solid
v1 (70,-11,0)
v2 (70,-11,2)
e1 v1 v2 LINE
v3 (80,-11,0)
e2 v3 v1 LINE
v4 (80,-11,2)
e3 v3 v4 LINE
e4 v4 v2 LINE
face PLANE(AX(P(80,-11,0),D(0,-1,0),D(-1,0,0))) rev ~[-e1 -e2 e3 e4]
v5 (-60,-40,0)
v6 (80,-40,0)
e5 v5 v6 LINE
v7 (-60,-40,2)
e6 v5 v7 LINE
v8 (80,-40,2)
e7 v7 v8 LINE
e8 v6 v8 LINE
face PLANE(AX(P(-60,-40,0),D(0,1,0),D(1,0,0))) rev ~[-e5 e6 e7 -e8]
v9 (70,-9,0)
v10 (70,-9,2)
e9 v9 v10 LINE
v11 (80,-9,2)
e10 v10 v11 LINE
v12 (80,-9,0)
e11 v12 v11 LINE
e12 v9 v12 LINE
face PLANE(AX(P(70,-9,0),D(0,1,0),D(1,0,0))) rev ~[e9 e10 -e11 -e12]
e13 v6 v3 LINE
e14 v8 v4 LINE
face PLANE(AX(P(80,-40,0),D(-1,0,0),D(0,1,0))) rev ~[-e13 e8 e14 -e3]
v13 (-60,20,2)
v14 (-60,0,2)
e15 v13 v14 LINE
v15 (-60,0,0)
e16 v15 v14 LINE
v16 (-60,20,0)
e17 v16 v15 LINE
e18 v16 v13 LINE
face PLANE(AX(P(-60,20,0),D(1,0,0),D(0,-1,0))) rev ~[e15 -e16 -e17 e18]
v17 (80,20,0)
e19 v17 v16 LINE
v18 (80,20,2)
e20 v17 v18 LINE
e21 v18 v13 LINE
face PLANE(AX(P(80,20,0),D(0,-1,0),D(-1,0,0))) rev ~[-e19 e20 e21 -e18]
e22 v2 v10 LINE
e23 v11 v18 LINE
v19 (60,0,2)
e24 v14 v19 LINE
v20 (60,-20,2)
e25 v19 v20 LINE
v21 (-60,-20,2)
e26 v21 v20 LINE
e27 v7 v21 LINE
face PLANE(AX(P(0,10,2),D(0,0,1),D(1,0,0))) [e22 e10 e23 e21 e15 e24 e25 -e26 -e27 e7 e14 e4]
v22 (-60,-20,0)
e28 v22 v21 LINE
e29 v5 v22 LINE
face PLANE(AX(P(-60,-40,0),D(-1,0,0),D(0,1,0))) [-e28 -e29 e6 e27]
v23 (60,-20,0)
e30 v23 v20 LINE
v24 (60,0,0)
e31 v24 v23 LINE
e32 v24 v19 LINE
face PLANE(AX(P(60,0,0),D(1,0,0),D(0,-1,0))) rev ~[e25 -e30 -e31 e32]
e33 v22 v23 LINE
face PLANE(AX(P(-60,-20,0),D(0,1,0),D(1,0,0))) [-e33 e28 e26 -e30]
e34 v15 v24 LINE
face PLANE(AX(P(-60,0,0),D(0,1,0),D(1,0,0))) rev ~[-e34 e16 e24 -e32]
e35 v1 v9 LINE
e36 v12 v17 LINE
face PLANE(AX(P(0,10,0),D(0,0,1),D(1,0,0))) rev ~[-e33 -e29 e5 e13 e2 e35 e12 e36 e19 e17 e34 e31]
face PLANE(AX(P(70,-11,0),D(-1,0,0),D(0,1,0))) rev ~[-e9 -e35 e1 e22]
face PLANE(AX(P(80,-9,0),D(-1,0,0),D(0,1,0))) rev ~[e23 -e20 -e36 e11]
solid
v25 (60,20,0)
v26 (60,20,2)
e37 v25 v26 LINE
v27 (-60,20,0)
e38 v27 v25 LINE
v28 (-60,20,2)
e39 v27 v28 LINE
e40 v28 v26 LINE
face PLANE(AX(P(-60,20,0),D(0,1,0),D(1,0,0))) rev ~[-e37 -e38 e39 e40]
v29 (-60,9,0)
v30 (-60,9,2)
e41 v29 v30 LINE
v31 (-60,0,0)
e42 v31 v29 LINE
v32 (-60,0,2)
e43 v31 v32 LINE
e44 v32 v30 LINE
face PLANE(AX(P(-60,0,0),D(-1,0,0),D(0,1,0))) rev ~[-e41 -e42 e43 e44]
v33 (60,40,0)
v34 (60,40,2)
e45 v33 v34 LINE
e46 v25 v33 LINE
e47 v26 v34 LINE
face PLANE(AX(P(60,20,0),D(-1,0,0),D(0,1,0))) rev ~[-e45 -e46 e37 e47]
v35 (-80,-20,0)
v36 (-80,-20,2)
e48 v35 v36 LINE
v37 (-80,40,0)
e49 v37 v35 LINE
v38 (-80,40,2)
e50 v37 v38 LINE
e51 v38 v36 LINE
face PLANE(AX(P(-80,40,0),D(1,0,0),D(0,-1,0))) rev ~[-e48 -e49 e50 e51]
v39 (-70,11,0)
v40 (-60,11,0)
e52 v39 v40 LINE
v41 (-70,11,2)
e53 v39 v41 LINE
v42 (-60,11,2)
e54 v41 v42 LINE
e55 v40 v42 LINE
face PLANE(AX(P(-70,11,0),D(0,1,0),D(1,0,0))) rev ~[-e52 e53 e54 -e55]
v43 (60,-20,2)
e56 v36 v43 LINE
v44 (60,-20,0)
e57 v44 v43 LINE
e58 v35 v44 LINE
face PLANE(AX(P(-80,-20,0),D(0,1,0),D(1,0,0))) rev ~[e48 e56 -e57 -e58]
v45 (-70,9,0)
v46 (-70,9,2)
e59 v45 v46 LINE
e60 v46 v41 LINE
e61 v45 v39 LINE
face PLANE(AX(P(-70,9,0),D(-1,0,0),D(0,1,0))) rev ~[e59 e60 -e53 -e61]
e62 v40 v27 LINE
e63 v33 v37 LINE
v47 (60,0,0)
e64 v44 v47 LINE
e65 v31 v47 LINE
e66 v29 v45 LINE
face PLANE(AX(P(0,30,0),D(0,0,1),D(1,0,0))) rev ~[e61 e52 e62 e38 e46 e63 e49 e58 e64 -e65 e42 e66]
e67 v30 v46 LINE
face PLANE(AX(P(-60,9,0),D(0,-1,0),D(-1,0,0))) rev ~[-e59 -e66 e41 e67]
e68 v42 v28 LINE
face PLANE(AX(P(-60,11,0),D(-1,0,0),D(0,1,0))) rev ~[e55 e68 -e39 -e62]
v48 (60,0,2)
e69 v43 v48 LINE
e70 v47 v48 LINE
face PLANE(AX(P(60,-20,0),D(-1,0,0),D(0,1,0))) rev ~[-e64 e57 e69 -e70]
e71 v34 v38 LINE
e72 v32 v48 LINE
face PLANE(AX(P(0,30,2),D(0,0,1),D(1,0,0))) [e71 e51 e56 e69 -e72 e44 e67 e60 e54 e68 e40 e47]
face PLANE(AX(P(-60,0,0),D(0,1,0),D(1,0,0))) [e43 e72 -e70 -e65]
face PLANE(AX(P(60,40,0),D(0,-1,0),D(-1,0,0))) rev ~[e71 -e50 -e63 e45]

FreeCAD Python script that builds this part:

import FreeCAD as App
import Part
import Sketcher
from FreeCAD import Vector
Q = App.Units.Quantity


def add_polygon(sketch, points):
    """Adds a closed chain of lines whose ends are joined by coincident constraints."""
    first, n = sketch.GeometryCount, len(points)
    for a, b in zip(points, points[1:] + points[:1]):
        sketch.addGeometry(Part.LineSegment(App.Vector(*a, 0), App.Vector(*b, 0)), False)
    for i in range(n):
        sketch.addConstraint(Sketcher.Constraint("Coincident", first + i, 2, first + (i + 1) % n, 1))

doc = App.newDocument("Part")
body = doc.addObject("PartDesign::Body", "Body")

# Sketch on XY plane
sketch1 = doc.addObject("Sketcher::SketchObject", "Sketch")
body.addObject(sketch1)
sketch1.AttachmentSupport = (doc.XY_Plane, [""])
sketch1.MapMode = "FlatFace"
add_polygon(sketch1, [(60, 20), (60, 40), (-80, 40), (-80, -20), (60, -20), (60, 0), (-60, 0), (-60, 9), (-70, 9), (-70, 11), (-60, 11), (-60, 20)])  # lines 0-11
sketch1.addConstraint([
    Sketcher.Constraint("Vertical", 0),
    Sketcher.Constraint("Horizontal", 1),
    Sketcher.Constraint("Vertical", 2),
    Sketcher.Constraint("Horizontal", 3),
    Sketcher.Constraint("Vertical", 4),
    Sketcher.Constraint("Horizontal", 5),
    Sketcher.Constraint("Vertical", 6),
    Sketcher.Constraint("Horizontal", 7),
    Sketcher.Constraint("Vertical", 8),
    Sketcher.Constraint("Horizontal", 9),
    Sketcher.Constraint("Vertical", 10),
    Sketcher.Constraint("Horizontal", 11),
    Sketcher.Constraint("Symmetric", 4, 2, 5, 2, -1, 1),
    Sketcher.Constraint("Symmetric", 3, 2, 10, 2, -1, 1),
    Sketcher.Constraint("Vertical", 0, 2, 3, 2),
    Sketcher.Constraint("Equal", 0, 4),
    Sketcher.Constraint("Equal", 6, 10),
    Sketcher.Constraint("DistanceX", 1, 2, 1, 1, Q("140 mm")),
    Sketcher.Constraint("DistanceX", 5, 2, 5, 1, Q("120 mm")),
    Sketcher.Constraint("DistanceX", 7, 2, 7, 1, Q("10 mm")),
    Sketcher.Constraint("DistanceY", 0, 1, 0, 2, Q("20 mm")),
    Sketcher.Constraint("DistanceY", 6, 1, 6, 2, Q("9 mm")),
])
pad1 = doc.addObject("PartDesign::Pad", "Pad")
body.addObject(pad1)
pad1.Profile = sketch1
pad1.Length = 2
body2 = doc.addObject("PartDesign::Body", "Body001")

# Sketch on XY plane
sketch2 = doc.addObject("Sketcher::SketchObject", "Sketch001")
body2.addObject(sketch2)
sketch2.AttachmentSupport = (doc.getObject("XY_Plane001"), [""])
sketch2.MapMode = "FlatFace"
add_polygon(sketch2, [(-60, 20), (-60, 0), (60, 0), (60, -20), (-60, -20), (-60, -40), (80, -40), (80, -11), (70, -11), (70, -9), (80, -9), (80, 20)])  # lines 0-11
sketch2.addConstraint([
    Sketcher.Constraint("Vertical", 0),
    Sketcher.Constraint("Horizontal", 1),
    Sketcher.Constraint("Vertical", 2),
    Sketcher.Constraint("Horizontal", 3),
    Sketcher.Constraint("Vertical", 4),
    Sketcher.Constraint("Horizontal", 5),
    Sketcher.Constraint("Vertical", 6),
    Sketcher.Constraint("Horizontal", 7),
    Sketcher.Constraint("Vertical", 8),
    Sketcher.Constraint("Horizontal", 9),
    Sketcher.Constraint("Vertical", 10),
    Sketcher.Constraint("Horizontal", 11),
    Sketcher.Constraint("Symmetric", 0, 2, 1, 2, -1, 1),
    Sketcher.Constraint("Symmetric", 3, 2, 11, 2, -1),
    Sketcher.Constraint("Vertical", 6, 2, 9, 2),
    Sketcher.Constraint("Equal", 2, 4),
    Sketcher.Constraint("Equal", 6, 10),
    Sketcher.Constraint("DistanceX", 1, 1, 1, 2, Q("120 mm")),
    Sketcher.Constraint("DistanceX", 5, 1, 5, 2, Q("140 mm")),
    Sketcher.Constraint("DistanceX", 7, 2, 7, 1, Q("10 mm")),
    Sketcher.Constraint("DistanceY", 0, 2, 0, 1, Q("20 mm")),
    Sketcher.Constraint("DistanceY", 6, 1, 6, 2, Q("29 mm")),
])
pad2 = doc.addObject("PartDesign::Pad", "Pad001")
body2.addObject(pad2)
pad2.Profile = sketch2
pad2.Length = 2

doc.recompute()
